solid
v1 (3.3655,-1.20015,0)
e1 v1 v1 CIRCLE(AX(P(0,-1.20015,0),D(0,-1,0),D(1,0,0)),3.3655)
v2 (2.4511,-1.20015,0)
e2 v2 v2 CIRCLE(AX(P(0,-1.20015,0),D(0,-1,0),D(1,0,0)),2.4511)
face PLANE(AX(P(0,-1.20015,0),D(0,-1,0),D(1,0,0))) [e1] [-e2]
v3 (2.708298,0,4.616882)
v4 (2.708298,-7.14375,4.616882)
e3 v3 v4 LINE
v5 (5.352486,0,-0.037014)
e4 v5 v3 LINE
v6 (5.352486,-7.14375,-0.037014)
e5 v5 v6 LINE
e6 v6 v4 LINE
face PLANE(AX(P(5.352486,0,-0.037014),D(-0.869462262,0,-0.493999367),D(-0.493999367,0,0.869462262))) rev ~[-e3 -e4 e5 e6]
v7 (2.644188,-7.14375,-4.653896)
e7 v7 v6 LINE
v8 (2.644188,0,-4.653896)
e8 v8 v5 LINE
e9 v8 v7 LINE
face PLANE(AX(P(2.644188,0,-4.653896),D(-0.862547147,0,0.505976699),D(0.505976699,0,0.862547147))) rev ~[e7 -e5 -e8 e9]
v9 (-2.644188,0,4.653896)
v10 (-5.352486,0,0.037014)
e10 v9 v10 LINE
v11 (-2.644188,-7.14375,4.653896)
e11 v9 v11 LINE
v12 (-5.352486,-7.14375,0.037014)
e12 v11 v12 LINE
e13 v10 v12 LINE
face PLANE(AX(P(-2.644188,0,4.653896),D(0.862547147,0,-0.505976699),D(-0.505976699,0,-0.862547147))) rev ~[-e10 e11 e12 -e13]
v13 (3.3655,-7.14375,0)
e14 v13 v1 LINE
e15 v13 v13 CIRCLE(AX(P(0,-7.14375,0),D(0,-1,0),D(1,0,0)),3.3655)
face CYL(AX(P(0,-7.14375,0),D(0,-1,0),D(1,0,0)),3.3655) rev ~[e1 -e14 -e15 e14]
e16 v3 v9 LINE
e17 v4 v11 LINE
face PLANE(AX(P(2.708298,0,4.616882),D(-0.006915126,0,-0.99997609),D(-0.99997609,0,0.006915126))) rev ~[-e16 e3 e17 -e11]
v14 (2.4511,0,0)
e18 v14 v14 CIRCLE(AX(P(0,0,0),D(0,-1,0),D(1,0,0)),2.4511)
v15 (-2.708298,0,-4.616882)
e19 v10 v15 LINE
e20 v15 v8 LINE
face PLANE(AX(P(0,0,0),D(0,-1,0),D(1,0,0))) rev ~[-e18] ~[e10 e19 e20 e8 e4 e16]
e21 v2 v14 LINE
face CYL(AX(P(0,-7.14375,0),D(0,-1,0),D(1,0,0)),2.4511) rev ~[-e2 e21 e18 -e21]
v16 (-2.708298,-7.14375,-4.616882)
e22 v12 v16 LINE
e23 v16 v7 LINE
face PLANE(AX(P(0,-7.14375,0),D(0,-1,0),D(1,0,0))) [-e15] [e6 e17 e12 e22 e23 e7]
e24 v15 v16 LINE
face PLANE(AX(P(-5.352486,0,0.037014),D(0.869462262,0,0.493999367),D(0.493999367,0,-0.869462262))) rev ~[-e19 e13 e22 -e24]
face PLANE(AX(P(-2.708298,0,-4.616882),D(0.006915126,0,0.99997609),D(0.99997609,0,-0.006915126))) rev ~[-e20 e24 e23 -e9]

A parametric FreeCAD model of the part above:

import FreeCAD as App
import Part
import Sketcher

V = App.Vector
Q = App.Units.Quantity


def add_polygon(sketch, points):
    """Adds a closed chain of lines whose ends are joined by coincident constraints."""
    first, n = sketch.GeometryCount, len(points)
    for a, b in zip(points, points[1:] + points[:1]):
        sketch.addGeometry(Part.LineSegment(App.Vector(*a, 0), App.Vector(*b, 0)), False)
    for i in range(n):
        sketch.addConstraint(Sketcher.Constraint("Coincident", first + i, 2, first + (i + 1) % n, 1))

doc = App.newDocument("Part")
body = doc.addObject("PartDesign::Body", "Body")

sketch1 = body.newObject("Sketcher::SketchObject", "Sketch")
sketch1.AttachmentSupport = (doc.getObject("XZ_Plane"), [""])
sketch1.MapMode = "FlatFace"
add_polygon(sketch1, [(-2.644188, 4.653896), (-5.352486, 0.037014), (-2.708298, -4.616882), (2.644188, -4.653896), (5.352486, -0.037014), (2.708298, 4.616882)])
sketch1.addConstraint(Sketcher.Constraint("Symmetric", 0, 2, 3, 2, -1, 1))
sketch1.addConstraint(Sketcher.Constraint("Symmetric", 1, 2, 4, 2, -1, 1))
sketch1.addConstraint(Sketcher.Constraint("Symmetric", 2, 2, 5, 2, -1, 1))
sketch1.addConstraint(Sketcher.Constraint("Equal", 0, 1))
sketch1.addConstraint(Sketcher.Constraint("Equal", 1, 2))
sketch1.addConstraint(Sketcher.Constraint("DistanceX", 1, 2, -1, 1, Q("2.708298 mm")))
sketch1.addConstraint(Sketcher.Constraint("DistanceX", -1, 1, 2, 2, Q("2.644188 mm")))
sketch1.addConstraint(Sketcher.Constraint("DistanceY", 2, 2, 0, 2, Q("4.69091 mm")))
sketch1.addConstraint(Sketcher.Constraint("DistanceY", 2, 2, 3, 2, Q("4.616882 mm")))
pad1 = body.newObject("PartDesign::Pad", "Pad")
pad1.Profile = sketch1
pad1.Length = Q("0.28125 in")

sketch2 = body.newObject("Sketcher::SketchObject", "Sketch001")
sketch2.AttachmentSupport = (doc.getObject("XZ_Plane"), [""])
sketch2.MapMode = "FlatFace"
sketch2.AttachmentOffset = App.Placement(V(0, 0, 0.28125 * 25.4), App.Rotation())
sketch2.addGeometry(Part.Circle(V(0, 0, 0), V(0, 0, 1), 2.4511), False)
sketch2.addConstraint(Sketcher.Constraint("Coincident", 0, 3, -1, 1))
sketch2.addConstraint(Sketcher.Constraint("Diameter", 0, Q("0.193 in")))
pocket1 = body.newObject("PartDesign::Pocket", "Pocket")
pocket1.Profile = sketch2
pocket1.Type = "ThroughAll"

sketch3 = body.newObject("Sketcher::SketchObject", "Sketch002")
sketch3.AttachmentSupport = (doc.getObject("XZ_Plane"), [""])
sketch3.MapMode = "FlatFace"
sketch3.AttachmentOffset = App.Placement(V(0, 0, 0.28125 * 25.4), App.Rotation())
sketch3.addGeometry(Part.Circle(V(0, 0, 0), V(0, 0, 1), 3.3655), False)
sketch3.addConstraint(Sketcher.Constraint("Coincident", 0, 3, -1, 1))
sketch3.addConstraint(Sketcher.Constraint("Diameter", 0, Q("0.265 in")))
pocket2 = body.newObject("PartDesign::Pocket", "Pocket001")
pocket2.Profile = sketch3
pocket2.Length = Q("0.234 in")

doc.recompute()
